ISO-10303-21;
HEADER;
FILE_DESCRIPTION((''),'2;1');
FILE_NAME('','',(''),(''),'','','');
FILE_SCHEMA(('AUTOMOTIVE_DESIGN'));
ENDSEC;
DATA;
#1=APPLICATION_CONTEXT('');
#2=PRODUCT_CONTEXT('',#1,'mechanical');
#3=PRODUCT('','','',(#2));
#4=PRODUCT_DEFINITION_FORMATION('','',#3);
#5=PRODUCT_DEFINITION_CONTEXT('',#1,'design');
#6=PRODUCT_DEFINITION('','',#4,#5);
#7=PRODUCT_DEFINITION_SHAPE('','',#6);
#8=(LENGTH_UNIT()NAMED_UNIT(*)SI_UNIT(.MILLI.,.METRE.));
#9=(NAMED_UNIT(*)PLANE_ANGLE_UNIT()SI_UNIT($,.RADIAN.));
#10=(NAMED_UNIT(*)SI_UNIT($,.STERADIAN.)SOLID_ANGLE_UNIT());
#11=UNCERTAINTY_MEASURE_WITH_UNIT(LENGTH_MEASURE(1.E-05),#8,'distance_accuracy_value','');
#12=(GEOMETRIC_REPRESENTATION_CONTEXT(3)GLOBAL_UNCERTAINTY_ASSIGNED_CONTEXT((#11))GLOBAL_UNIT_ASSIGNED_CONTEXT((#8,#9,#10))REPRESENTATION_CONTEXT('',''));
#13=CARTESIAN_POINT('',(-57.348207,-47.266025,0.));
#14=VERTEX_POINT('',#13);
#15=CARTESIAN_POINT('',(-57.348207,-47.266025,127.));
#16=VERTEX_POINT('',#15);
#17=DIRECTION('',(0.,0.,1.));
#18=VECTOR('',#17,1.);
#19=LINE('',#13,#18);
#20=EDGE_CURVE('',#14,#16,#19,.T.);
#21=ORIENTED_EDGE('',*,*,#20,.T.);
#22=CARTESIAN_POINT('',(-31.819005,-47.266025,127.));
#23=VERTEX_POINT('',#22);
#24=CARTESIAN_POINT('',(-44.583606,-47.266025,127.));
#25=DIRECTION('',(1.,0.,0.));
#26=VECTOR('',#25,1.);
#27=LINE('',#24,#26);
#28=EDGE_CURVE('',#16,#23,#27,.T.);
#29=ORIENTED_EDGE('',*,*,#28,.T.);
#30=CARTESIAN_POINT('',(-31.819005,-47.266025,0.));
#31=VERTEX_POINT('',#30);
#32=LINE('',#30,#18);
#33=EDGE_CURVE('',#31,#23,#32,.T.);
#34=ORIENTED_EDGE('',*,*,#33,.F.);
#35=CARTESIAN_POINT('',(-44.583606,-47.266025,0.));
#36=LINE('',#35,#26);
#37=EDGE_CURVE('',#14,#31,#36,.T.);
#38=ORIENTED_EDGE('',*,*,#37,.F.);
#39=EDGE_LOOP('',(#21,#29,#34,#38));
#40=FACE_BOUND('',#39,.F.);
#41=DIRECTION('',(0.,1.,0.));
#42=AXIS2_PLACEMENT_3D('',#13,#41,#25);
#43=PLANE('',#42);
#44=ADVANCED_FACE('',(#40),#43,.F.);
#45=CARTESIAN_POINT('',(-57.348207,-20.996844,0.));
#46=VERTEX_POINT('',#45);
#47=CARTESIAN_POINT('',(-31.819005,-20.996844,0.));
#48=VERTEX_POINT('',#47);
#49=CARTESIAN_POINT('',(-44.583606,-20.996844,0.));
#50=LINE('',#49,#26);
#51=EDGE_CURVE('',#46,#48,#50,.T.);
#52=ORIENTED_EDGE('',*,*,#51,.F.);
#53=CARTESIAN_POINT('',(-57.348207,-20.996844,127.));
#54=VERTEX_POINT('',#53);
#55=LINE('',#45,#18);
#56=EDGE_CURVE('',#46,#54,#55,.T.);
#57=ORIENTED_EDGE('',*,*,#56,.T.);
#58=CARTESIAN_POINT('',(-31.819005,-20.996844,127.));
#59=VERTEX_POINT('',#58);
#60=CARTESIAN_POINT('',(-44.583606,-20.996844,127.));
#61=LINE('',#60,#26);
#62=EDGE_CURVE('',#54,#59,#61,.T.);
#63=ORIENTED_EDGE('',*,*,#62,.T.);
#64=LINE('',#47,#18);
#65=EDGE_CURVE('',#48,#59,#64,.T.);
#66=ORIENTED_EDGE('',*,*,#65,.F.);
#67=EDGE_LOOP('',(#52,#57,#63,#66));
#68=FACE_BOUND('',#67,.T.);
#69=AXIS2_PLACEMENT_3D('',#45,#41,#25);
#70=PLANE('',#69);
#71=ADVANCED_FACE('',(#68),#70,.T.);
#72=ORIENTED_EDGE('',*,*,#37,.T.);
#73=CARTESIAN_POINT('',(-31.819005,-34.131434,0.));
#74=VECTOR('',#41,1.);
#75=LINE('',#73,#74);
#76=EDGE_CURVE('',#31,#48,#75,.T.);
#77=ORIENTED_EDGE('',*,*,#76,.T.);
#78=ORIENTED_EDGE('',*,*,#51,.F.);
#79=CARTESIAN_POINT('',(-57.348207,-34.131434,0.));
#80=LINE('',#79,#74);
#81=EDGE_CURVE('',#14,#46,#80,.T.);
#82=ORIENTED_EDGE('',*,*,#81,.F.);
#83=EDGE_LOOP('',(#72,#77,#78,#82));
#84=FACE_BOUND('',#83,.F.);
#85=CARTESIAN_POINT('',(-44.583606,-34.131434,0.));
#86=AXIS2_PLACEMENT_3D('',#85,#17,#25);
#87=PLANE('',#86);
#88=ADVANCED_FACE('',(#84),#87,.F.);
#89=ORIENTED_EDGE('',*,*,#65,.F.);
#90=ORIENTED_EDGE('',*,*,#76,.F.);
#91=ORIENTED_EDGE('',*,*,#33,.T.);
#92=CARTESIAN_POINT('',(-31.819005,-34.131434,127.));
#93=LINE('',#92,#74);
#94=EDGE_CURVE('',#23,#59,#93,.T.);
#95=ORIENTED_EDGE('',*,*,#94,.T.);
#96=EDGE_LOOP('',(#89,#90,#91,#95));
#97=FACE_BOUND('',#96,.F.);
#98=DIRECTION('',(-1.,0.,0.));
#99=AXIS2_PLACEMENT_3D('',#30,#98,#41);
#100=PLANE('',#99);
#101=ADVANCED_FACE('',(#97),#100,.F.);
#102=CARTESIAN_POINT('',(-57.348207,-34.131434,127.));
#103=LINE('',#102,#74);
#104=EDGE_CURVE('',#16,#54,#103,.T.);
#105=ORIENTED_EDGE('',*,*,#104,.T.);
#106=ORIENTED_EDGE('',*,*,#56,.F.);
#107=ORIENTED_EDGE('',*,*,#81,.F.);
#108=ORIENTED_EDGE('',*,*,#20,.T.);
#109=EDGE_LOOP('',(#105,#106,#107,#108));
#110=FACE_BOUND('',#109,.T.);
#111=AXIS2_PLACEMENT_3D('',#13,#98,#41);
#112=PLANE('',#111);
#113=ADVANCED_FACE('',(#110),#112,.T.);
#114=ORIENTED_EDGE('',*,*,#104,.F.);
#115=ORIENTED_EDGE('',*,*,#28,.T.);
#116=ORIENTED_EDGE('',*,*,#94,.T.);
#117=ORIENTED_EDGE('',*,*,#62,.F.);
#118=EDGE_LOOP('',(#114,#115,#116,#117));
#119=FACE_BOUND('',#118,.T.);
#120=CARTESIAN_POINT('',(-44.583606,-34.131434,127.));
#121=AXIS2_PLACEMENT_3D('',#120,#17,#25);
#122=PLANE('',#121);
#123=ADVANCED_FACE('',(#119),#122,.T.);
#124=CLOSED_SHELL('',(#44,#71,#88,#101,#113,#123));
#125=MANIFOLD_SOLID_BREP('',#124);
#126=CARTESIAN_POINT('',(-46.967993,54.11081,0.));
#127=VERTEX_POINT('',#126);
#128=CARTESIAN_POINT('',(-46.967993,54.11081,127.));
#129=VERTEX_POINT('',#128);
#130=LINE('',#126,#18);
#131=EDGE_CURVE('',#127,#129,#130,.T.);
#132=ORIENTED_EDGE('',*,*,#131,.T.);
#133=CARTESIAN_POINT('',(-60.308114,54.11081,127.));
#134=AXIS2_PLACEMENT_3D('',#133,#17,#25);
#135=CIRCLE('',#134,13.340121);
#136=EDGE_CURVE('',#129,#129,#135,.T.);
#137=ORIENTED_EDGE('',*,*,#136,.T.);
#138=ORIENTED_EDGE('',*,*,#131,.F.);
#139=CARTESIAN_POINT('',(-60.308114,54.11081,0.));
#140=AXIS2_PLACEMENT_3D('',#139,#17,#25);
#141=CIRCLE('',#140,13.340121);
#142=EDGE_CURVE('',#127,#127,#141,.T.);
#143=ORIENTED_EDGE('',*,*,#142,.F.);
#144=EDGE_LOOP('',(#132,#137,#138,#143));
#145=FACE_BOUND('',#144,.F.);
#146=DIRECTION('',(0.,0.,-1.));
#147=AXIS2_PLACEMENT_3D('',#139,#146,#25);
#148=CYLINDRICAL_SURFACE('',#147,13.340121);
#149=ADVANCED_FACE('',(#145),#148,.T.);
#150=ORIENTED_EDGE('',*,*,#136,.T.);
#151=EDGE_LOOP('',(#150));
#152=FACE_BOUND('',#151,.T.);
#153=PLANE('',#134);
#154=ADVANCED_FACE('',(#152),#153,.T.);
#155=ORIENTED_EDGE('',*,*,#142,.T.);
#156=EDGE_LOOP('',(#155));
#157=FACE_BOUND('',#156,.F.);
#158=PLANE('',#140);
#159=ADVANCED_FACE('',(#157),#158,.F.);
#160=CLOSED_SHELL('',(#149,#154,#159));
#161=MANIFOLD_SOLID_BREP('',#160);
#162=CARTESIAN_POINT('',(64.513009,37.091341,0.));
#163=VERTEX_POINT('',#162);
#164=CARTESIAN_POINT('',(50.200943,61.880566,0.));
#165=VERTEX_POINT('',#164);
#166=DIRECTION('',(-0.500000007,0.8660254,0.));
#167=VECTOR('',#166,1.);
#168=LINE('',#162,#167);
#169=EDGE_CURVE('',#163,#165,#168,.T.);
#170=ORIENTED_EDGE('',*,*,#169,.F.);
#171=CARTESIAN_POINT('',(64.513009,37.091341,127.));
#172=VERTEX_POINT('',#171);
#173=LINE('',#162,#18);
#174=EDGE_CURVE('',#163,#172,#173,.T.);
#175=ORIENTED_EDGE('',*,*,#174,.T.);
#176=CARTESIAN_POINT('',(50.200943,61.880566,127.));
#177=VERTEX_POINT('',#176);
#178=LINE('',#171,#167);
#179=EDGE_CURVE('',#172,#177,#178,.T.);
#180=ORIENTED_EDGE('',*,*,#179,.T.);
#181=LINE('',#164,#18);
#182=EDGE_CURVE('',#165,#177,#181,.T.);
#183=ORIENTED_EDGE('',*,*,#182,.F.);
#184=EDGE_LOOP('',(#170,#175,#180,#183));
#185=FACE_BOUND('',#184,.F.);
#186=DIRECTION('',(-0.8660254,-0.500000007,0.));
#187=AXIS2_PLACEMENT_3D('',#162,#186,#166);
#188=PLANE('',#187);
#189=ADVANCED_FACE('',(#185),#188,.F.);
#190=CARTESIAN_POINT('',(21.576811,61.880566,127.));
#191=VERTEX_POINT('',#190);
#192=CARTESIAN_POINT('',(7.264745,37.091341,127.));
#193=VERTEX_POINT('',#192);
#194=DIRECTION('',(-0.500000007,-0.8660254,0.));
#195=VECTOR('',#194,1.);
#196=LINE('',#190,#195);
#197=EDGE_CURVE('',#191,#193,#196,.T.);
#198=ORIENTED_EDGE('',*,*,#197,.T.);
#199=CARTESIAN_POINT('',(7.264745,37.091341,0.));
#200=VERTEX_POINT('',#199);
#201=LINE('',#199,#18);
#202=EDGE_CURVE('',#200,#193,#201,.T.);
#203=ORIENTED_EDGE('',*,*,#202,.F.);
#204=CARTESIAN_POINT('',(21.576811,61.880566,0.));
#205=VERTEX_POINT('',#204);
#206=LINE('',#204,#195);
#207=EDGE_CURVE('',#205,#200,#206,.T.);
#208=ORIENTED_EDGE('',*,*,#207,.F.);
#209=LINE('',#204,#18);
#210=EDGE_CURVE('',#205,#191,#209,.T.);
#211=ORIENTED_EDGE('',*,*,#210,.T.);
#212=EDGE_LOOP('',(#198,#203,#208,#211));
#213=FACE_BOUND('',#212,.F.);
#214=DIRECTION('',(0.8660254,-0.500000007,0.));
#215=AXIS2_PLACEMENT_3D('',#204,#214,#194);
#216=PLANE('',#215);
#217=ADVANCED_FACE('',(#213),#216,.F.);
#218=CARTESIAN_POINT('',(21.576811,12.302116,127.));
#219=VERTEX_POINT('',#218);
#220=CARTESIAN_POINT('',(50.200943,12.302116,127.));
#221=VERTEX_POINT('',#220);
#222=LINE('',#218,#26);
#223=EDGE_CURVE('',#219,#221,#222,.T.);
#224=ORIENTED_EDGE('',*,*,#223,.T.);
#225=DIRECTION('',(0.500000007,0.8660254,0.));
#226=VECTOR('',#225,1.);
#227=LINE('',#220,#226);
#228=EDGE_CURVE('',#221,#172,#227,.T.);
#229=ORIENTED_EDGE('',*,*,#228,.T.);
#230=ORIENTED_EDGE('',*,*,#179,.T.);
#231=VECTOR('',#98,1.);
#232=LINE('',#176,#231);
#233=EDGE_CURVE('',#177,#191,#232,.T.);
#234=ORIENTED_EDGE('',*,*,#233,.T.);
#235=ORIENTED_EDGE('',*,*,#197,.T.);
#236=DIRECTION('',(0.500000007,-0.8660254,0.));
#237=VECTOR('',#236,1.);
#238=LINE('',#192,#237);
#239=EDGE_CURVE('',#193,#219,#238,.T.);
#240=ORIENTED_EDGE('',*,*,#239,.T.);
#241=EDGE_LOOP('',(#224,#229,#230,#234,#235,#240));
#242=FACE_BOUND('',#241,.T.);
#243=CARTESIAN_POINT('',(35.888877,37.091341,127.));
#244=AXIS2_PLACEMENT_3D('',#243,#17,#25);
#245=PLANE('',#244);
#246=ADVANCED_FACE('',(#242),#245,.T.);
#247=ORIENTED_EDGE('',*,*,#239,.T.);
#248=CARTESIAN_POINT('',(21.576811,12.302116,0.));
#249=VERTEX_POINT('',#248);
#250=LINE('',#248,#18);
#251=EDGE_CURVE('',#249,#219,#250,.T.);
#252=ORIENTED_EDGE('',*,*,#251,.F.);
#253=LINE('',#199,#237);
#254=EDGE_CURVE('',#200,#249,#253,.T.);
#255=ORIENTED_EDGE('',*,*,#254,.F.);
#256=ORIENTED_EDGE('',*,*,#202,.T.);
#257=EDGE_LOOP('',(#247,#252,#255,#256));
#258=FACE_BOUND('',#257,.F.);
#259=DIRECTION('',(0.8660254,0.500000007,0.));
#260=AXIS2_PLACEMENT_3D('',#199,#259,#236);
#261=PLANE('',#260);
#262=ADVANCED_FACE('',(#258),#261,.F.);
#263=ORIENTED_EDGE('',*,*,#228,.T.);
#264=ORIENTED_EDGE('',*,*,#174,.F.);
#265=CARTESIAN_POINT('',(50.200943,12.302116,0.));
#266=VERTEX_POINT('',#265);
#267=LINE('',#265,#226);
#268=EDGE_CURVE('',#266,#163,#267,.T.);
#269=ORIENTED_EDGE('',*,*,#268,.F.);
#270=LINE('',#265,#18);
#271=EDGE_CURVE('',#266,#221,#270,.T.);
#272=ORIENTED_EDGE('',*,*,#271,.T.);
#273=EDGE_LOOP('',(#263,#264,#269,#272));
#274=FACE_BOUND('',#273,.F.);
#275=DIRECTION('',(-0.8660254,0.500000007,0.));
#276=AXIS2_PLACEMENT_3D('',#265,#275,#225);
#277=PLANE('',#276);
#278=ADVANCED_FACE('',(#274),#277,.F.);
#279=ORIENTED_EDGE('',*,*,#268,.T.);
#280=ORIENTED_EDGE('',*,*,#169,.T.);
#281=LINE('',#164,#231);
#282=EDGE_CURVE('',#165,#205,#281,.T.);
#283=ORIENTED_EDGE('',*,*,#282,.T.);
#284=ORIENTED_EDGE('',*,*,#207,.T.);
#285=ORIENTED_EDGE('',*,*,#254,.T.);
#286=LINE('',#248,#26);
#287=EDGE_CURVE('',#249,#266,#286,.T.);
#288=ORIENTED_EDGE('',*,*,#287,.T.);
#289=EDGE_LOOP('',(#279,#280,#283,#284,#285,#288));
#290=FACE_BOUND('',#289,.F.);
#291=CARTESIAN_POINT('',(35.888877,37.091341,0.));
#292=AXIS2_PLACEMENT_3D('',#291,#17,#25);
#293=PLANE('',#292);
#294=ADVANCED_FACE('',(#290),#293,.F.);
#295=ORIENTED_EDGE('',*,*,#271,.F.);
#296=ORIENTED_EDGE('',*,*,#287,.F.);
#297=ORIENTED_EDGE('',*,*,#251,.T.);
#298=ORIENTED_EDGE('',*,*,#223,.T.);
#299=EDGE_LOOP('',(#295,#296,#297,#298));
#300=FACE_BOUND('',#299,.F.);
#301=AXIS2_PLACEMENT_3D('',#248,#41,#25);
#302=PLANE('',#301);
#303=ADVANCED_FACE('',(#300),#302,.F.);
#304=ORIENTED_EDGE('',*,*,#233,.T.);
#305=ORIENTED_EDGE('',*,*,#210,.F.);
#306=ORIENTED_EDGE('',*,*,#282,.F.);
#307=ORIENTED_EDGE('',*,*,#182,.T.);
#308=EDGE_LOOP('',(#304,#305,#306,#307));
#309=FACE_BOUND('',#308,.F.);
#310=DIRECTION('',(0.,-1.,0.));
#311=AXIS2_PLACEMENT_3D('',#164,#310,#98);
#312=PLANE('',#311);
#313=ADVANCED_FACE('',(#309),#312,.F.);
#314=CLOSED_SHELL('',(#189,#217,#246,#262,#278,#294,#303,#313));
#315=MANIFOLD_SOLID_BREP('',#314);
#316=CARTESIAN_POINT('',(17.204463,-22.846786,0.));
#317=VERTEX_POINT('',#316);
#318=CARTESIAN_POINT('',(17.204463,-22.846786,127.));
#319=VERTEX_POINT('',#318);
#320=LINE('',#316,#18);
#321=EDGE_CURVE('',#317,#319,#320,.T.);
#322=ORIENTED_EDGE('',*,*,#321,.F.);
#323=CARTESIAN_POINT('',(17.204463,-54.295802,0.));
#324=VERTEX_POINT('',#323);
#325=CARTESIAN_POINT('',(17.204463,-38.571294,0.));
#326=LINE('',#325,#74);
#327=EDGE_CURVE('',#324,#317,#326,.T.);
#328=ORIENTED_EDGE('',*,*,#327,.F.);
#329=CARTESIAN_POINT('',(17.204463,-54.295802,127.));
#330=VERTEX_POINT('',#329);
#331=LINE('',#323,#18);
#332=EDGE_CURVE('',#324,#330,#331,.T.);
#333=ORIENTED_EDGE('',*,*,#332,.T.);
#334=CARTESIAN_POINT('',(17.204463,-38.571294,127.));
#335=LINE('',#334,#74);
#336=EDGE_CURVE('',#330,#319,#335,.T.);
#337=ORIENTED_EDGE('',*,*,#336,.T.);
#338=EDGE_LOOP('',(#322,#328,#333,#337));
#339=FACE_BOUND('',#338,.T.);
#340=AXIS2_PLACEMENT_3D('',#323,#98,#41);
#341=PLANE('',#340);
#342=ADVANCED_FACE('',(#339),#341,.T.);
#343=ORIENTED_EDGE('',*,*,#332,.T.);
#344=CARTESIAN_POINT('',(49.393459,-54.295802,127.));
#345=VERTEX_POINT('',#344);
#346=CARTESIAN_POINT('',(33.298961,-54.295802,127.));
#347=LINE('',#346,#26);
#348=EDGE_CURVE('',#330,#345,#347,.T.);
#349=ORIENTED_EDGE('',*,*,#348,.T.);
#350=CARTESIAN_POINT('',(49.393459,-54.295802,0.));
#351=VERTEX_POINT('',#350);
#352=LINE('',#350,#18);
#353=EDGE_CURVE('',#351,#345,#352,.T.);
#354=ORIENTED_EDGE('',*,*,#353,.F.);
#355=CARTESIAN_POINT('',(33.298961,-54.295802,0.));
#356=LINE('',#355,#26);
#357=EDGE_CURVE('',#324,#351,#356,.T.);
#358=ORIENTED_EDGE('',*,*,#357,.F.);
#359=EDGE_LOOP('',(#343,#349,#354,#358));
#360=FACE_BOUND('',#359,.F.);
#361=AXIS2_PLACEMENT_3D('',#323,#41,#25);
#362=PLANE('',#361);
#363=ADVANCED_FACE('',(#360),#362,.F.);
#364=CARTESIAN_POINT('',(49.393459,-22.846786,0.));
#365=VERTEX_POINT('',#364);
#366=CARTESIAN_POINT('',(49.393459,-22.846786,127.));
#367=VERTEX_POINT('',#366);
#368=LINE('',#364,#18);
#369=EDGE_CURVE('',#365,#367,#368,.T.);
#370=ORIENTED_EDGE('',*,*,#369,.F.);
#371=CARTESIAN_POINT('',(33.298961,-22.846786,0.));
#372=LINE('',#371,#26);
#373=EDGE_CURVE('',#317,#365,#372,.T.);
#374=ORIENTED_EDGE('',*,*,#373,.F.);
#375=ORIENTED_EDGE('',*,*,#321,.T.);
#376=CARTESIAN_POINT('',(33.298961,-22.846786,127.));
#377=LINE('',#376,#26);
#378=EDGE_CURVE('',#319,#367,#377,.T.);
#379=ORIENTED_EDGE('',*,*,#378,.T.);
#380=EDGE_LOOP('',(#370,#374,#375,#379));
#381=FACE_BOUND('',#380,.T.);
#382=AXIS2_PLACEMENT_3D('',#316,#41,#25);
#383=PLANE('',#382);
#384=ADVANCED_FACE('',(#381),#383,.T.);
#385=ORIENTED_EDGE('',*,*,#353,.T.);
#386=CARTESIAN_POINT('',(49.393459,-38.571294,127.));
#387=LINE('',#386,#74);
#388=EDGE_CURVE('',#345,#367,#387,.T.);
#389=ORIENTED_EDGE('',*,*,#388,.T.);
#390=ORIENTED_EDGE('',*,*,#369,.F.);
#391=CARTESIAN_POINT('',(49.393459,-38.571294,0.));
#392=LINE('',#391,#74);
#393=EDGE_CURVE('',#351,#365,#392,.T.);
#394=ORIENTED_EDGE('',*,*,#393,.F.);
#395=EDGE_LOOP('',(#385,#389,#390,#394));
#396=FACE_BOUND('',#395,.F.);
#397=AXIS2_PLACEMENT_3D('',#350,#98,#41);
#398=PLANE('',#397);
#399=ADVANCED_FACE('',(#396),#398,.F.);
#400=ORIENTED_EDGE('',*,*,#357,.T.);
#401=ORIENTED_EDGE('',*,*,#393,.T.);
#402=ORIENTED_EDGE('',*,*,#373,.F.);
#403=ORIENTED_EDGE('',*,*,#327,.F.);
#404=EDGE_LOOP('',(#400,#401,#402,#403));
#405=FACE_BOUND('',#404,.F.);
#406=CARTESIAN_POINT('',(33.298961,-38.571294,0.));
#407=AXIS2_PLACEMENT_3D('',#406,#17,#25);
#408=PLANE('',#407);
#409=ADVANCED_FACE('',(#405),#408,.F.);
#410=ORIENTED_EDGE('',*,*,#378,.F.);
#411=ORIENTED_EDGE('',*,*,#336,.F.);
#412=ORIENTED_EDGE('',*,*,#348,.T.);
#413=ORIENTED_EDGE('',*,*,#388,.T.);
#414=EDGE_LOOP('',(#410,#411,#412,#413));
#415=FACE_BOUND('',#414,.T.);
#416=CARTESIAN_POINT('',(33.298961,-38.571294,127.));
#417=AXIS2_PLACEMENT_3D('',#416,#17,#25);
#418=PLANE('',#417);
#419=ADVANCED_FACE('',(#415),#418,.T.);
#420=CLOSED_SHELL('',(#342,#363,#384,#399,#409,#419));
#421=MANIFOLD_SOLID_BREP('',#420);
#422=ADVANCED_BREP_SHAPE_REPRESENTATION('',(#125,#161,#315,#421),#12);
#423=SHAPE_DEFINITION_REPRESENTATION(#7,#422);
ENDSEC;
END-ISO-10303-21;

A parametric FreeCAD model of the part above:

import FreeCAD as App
import Part
import Sketcher

V = App.Vector
Q = App.Units.Quantity

doc = App.newDocument("Part")
body = doc.addObject("PartDesign::Body", "Body")
body.AllowCompound = True

# Sketch on XY plane
sketch1 = body.newObject("Sketcher::SketchObject", "Sketch")
sketch1.AttachmentSupport = (doc.getObject("XY_Plane"), [""])
sketch1.MapMode = "FlatFace"
sketch1.addGeometry(Part.Circle(V(-60, 54, 0), V(0, 0, 1), 13), False)
sketch1.addGeometry(Part.LineSegment(V(17, -23, 0), V(17, -54, 0)), False)
sketch1.addGeometry(Part.LineSegment(V(17, -54, 0), V(49, -54, 0)), False)
sketch1.addGeometry(Part.LineSegment(V(49, -54, 0), V(49, -23, 0)), False)
sketch1.addGeometry(Part.LineSegment(V(49, -23, 0), V(17, -23, 0)), False)
sketch1.addGeometry(Part.LineSegment(V(-57, -21, 0), V(-57, -47, 0)), False)
sketch1.addGeometry(Part.LineSegment(V(-57, -47, 0), V(-32, -47, 0)), False)
sketch1.addGeometry(Part.LineSegment(V(-32, -47, 0), V(-32, -21, 0)), False)
sketch1.addGeometry(Part.LineSegment(V(-32, -21, 0), V(-57, -21, 0)), False)
sketch1.addGeometry(Part.LineSegment(V(50, 62, 0), V(22, 62, 0)), False)
sketch1.addGeometry(Part.LineSegment(V(22, 62, 0), V(7, 37, 0)), False)
sketch1.addGeometry(Part.LineSegment(V(7, 37, 0), V(22, 12, 0)), False)
sketch1.addGeometry(Part.LineSegment(V(22, 12, 0), V(50, 12, 0)), False)
sketch1.addGeometry(Part.LineSegment(V(50, 12, 0), V(65, 37, 0)), False)
sketch1.addGeometry(Part.LineSegment(V(65, 37, 0), V(50, 62, 0)), False)
sketch1.addConstraint(Sketcher.Constraint("Coincident", 1, 2, 2, 1))
sketch1.addConstraint(Sketcher.Constraint("Coincident", 2, 2, 3, 1))
sketch1.addConstraint(Sketcher.Constraint("Coincident", 3, 2, 4, 1))
sketch1.addConstraint(Sketcher.Constraint("Coincident", 4, 2, 1, 1))
sketch1.addConstraint(Sketcher.Constraint("Coincident", 5, 2, 6, 1))
sketch1.addConstraint(Sketcher.Constraint("Coincident", 6, 2, 7, 1))
sketch1.addConstraint(Sketcher.Constraint("Coincident", 7, 2, 8, 1))
sketch1.addConstraint(Sketcher.Constraint("Coincident", 8, 2, 5, 1))
sketch1.addConstraint(Sketcher.Constraint("Coincident", 9, 2, 10, 1))
sketch1.addConstraint(Sketcher.Constraint("Coincident", 10, 2, 11, 1))
sketch1.addConstraint(Sketcher.Constraint("Coincident", 11, 2, 12, 1))
sketch1.addConstraint(Sketcher.Constraint("Coincident", 12, 2, 13, 1))
sketch1.addConstraint(Sketcher.Constraint("Coincident", 13, 2, 14, 1))
sketch1.addConstraint(Sketcher.Constraint("Coincident", 14, 2, 9, 1))
sketch1.addConstraint(Sketcher.Constraint("Vertical", 1))
sketch1.addConstraint(Sketcher.Constraint("Horizontal", 2))
sketch1.addConstraint(Sketcher.Constraint("Vertical", 3))
sketch1.addConstraint(Sketcher.Constraint("Horizontal", 4))
sketch1.addConstraint(Sketcher.Constraint("Vertical", 5))
sketch1.addConstraint(Sketcher.Constraint("Horizontal", 6))
sketch1.addConstraint(Sketcher.Constraint("Vertical", 7))
sketch1.addConstraint(Sketcher.Constraint("Horizontal", 8))
sketch1.addConstraint(Sketcher.Constraint("Horizontal", 9))
sketch1.addConstraint(Sketcher.Constraint("Horizontal", 12))
sketch1.addConstraint(Sketcher.Constraint("Parallel", 10, 13))
sketch1.addConstraint(Sketcher.Constraint("Parallel", 11, 14))
sketch1.addConstraint(Sketcher.Constraint("Horizontal", 10, 2, 13, 2))
sketch1.addConstraint(Sketcher.Constraint("Vertical", 9, 2, 11, 2))
sketch1.addConstraint(Sketcher.Constraint("Vertical", 12, 2, 14, 2))
sketch1.addConstraint(Sketcher.Constraint("Angle", 10, Q("-120 deg")))
sketch1.addConstraint(Sketcher.Constraint("Diameter", 0, Q("26.680242 mm")))
sketch1.addConstraint(Sketcher.Constraint("DistanceY", 5, 2, 5, 1, Q("26.269181 mm")))
sketch1.addConstraint(Sketcher.Constraint("DistanceX", 10, 2, 12, 2, Q("42.936198 mm")))
sketch1.addConstraint(Sketcher.Constraint("Distance", 10, Q("28.624132 mm")))
sketch1.addConstraint(Sketcher.Constraint("DistanceX", 2, 1, 2, 2, Q("32.188997 mm")))
sketch1.addConstraint(Sketcher.Constraint("DistanceX", 6, 1, 6, 2, Q("25.529202 mm")))
sketch1.addConstraint(Sketcher.Constraint("DistanceY", 1, 2, 1, 1, Q("31.449016 mm")))
sketch1.addConstraint(Sketcher.Constraint("DistanceY", -1, 1, 0, 3, Q("54.11081 mm")))
sketch1.addConstraint(Sketcher.Constraint("DistanceX", -1, 1, 2, 2, Q("49.393459 mm")))
sketch1.addConstraint(Sketcher.Constraint("DistanceX", -1, 1, 9, 2, Q("21.576811 mm")))
sketch1.addConstraint(Sketcher.Constraint("DistanceY", -1, 1, 10, 2, Q("37.091341 mm")))
sketch1.addConstraint(Sketcher.Constraint("DistanceY", 1, 2, 0, 3, Q("108.406612 mm")))
sketch1.addConstraint(Sketcher.Constraint("DistanceX", 5, 2, 1, 2, Q("74.55267 mm")))
sketch1.addConstraint(Sketcher.Constraint("DistanceY", 5, 2, 4, 2, Q("24.419238 mm")))
sketch1.addConstraint(Sketcher.Constraint("DistanceX", 0, 3, 7, 2, Q("28.489109 mm")))
pad1 = body.newObject("PartDesign::Pad", "Pad")
pad1.Profile = sketch1
pad1.Length = Q("5 in")

doc.recompute()
